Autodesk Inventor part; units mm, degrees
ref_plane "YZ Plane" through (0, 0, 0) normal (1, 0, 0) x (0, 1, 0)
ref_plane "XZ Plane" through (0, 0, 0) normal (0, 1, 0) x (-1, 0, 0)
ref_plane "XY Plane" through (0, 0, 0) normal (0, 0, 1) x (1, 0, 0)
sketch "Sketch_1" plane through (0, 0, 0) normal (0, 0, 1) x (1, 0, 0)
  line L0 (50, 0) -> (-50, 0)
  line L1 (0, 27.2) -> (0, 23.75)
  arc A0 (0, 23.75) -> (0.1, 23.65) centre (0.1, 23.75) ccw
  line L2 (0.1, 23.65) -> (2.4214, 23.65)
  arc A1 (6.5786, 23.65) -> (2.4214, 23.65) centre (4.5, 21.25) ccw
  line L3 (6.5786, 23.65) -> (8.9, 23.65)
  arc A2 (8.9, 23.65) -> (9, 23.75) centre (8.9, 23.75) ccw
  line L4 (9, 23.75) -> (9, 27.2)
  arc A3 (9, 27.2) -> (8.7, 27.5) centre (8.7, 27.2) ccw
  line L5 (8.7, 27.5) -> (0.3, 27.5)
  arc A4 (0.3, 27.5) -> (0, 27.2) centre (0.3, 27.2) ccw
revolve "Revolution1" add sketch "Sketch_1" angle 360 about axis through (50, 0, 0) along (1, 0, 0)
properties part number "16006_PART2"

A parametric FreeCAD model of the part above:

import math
import FreeCAD as App
import Part
import Sketcher

doc = App.newDocument("Part")
body = doc.addObject("PartDesign::Body", "Body")

sketch1 = body.newObject("Sketcher::SketchObject", "Sketch")
sketch1.AttachmentSupport = (doc.getObject("XY_Plane"), [""])
sketch1.MapMode = "FlatFace"
sketch1.addGeometry([
    Part.ArcOfCircle(Part.Circle(App.Vector(0.3, 27.2, 0), App.Vector(0, 0, 1), 0.3), math.radians(90), math.radians(180)),
    Part.LineSegment(App.Vector(0, 27.2, 0), App.Vector(0, 23.75, 0)),
    Part.ArcOfCircle(Part.Circle(App.Vector(0.1, 23.75, 0), App.Vector(0, 0, 1), 0.1), math.radians(180), math.radians(270)),
    Part.LineSegment(App.Vector(0.1, 23.65, 0), App.Vector(2.42, 23.65, 0)),
    Part.ArcOfCircle(Part.Circle(App.Vector(4.5, 21.25, 0), App.Vector(0, 0, 1), 3.17), math.radians(49), math.radians(131)),
    Part.LineSegment(App.Vector(6.58, 23.65, 0), App.Vector(8.9, 23.65, 0)),
    Part.ArcOfCircle(Part.Circle(App.Vector(8.9, 23.75, 0), App.Vector(0, 0, 1), 0.1), math.radians(-90), math.radians(0)),
    Part.LineSegment(App.Vector(9, 23.75, 0), App.Vector(9, 27.2, 0)),
    Part.ArcOfCircle(Part.Circle(App.Vector(8.7, 27.2, 0), App.Vector(0, 0, 1), 0.3), math.radians(0), math.radians(90)),
    Part.LineSegment(App.Vector(8.7, 27.5, 0), App.Vector(0.3, 27.5, 0)),
], False)
sketch1.addConstraint([
    Sketcher.Constraint("Tangent", 0, 2, 1, 1),
    Sketcher.Constraint("Tangent", 1, 2, 2, 1),
    Sketcher.Constraint("Tangent", 2, 2, 3, 1),
    Sketcher.Constraint("Coincident", 3, 2, 4, 2),
    Sketcher.Constraint("Coincident", 4, 1, 5, 1),
    Sketcher.Constraint("Tangent", 5, 2, 6, 1),
    Sketcher.Constraint("Tangent", 6, 2, 7, 1),
    Sketcher.Constraint("Tangent", 7, 2, 8, 1),
    Sketcher.Constraint("Tangent", 8, 2, 9, 1),
    Sketcher.Constraint("Tangent", 9, 2, 0, 1),
    Sketcher.Constraint("Vertical", 1),
    Sketcher.Constraint("Horizontal", 3),
    Sketcher.Constraint("Horizontal", 5),
    Sketcher.Constraint("Vertical", 7),
    Sketcher.Constraint("Horizontal", 9),
    Sketcher.Constraint("Equal", 2, 6),
    Sketcher.Constraint("Equal", 0, 8),
    Sketcher.Constraint("PointOnObject", 0, 2, -2),
    Sketcher.Constraint("Horizontal", 2, 3, 6, 3),
    Sketcher.Constraint("Equal", 3, 5),
    Sketcher.Constraint("Radius", 0, 0.3),
    Sketcher.Constraint("Radius", 2, 0.1),
    Sketcher.Constraint("DistanceX", 9, 2, 9, 1, 8.4),
    Sketcher.Constraint("Radius", 4, 3.175),
    Sketcher.Constraint("DistanceY", 1, 2, 1, 1, 3.45),
    Sketcher.Constraint("DistanceY", -1, 1, 0, 3, 27.2),
    Sketcher.Constraint("DistanceY", 4, 3, 2, 3, 2.5),
])
revolution = body.newObject("PartDesign::Revolution", "Revolution")
revolution.Profile = sketch1
revolution.ReferenceAxis = (sketch1, ["H_Axis"])
revolution.Angle = 360

doc.recompute()
